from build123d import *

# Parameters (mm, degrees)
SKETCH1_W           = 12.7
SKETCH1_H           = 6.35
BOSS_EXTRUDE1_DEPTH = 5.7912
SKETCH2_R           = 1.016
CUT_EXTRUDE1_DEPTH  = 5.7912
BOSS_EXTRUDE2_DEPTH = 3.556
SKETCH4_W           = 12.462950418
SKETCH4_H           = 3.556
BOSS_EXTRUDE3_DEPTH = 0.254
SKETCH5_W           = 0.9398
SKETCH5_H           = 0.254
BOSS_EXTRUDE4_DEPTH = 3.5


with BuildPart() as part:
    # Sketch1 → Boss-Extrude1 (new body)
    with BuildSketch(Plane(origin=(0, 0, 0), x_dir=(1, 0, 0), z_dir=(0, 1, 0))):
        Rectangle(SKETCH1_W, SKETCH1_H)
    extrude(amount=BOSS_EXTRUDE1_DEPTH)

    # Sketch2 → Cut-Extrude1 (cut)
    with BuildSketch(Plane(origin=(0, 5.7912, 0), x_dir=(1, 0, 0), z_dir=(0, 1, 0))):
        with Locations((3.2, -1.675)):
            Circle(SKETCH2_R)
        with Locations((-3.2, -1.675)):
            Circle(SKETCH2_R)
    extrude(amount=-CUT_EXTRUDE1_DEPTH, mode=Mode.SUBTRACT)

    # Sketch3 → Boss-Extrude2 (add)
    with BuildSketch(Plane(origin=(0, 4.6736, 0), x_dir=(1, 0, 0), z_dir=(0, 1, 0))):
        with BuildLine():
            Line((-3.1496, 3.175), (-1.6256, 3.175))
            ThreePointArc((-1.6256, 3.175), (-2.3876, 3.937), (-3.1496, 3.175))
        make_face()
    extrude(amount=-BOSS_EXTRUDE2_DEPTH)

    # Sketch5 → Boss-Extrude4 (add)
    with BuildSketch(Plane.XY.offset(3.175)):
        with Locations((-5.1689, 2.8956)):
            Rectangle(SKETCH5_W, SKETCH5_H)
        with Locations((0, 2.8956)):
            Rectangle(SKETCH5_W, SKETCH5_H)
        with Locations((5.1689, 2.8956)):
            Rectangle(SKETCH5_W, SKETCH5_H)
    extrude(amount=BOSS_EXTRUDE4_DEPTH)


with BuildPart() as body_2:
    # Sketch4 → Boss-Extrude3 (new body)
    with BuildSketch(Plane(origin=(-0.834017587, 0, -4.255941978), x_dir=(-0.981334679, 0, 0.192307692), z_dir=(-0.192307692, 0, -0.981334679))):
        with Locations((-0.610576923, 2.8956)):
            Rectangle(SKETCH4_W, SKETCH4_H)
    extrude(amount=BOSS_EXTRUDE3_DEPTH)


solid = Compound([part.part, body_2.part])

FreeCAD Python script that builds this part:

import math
import FreeCAD as App
import Part
import Sketcher
Q = App.Units.Quantity


def add_polygon(sketch, points):
    """Adds a closed chain of lines whose ends are joined by coincident constraints."""
    first, n = sketch.GeometryCount, len(points)
    for a, b in zip(points, points[1:] + points[:1]):
        sketch.addGeometry(Part.LineSegment(App.Vector(*a, 0), App.Vector(*b, 0)), False)
    for i in range(n):
        sketch.addConstraint(Sketcher.Constraint("Coincident", first + i, 2, first + (i + 1) % n, 1))

doc = App.newDocument("Part")
body = doc.addObject("PartDesign::Body", "Body")

sketch1 = body.newObject("Sketcher::SketchObject", "Sketch")
sketch1.AttachmentSupport = (doc.getObject("XZ_Plane"), [""])
sketch1.MapMode = "FlatFace"
add_polygon(sketch1, [(-6, -3), (-6, 3), (6, 3), (6, -3)])
sketch1.addConstraint(Sketcher.Constraint("Vertical", 0))
sketch1.addConstraint(Sketcher.Constraint("Horizontal", 1))
sketch1.addConstraint(Sketcher.Constraint("Vertical", 2))
sketch1.addConstraint(Sketcher.Constraint("Horizontal", 3))
sketch1.addConstraint(Sketcher.Constraint("Symmetric", 0, 2, 2, 2, -1, 1))
sketch1.addConstraint(Sketcher.Constraint("DistanceX", 1, 1, 1, 2, Q("0.5 in")))
sketch1.addConstraint(Sketcher.Constraint("DistanceY", 0, 1, 0, 2, Q("0.25 in")))
pad1 = body.newObject("PartDesign::Pad", "Pad")
pad1.Profile = sketch1
pad1.Length = Q("0.228 in")
pad1.Reversed = True

sketch2 = body.newObject("Sketcher::SketchObject", "Sketch001")
sketch2.AttachmentSupport = (doc.getObject("XZ_Plane"), [""])
sketch2.MapMode = "FlatFace"
sketch2.AttachmentOffset = App.Placement(App.Vector(0, 0, -0.228 * 25.4), App.Rotation())
sketch2.addGeometry(Part.Circle(App.Vector(3.2, 1.7, 0), App.Vector(0, 0, 1), 1), False)
sketch2.addGeometry(Part.Circle(App.Vector(-3.2, 1.7, 0), App.Vector(0, 0, 1), 1), False)
sketch2.addConstraint(Sketcher.Constraint("Equal", 0, 1))
sketch2.addConstraint(Sketcher.Constraint("Symmetric", 0, 3, 1, 3, -2))
sketch2.addConstraint(Sketcher.Constraint("Diameter", 0, Q("0.08 in")))
sketch2.addConstraint(Sketcher.Constraint("DistanceX", -1, 1, 0, 3, Q("3.2 mm")))
sketch2.addConstraint(Sketcher.Constraint("DistanceY", -1, 1, 0, 3, Q("1.675 mm")))
pocket1 = body.newObject("PartDesign::Pocket", "Pocket")
pocket1.Profile = sketch2
pocket1.Length = Q("0.228 in")
pocket1.Reversed = True

sketch3 = body.newObject("Sketcher::SketchObject", "Sketch002")
sketch3.AttachmentSupport = (doc.getObject("XZ_Plane"), [""])
sketch3.MapMode = "FlatFace"
sketch3.AttachmentOffset = App.Placement(App.Vector(0, 0, -0.184 * 25.4), App.Rotation())
sketch3.addGeometry(Part.LineSegment(App.Vector(-3.1, -3.2, 0), App.Vector(-1.6, -3.2, 0)), False)
sketch3.addGeometry(Part.ArcOfCircle(Part.Circle(App.Vector(-2.4, -3.2, 0), App.Vector(0, 0, 1), 0.8), math.radians(180), math.radians(360)), False)
sketch3.addConstraint(Sketcher.Constraint("Coincident", 0, 1, 1, 1))
sketch3.addConstraint(Sketcher.Constraint("Coincident", 1, 2, 0, 2))
sketch3.addConstraint(Sketcher.Constraint("Horizontal", 0))
sketch3.addConstraint(Sketcher.Constraint("Horizontal", 1, 3, 0, 1))
sketch3.addConstraint(Sketcher.Constraint("Radius", 1, Q("0.03 in")))
sketch3.addConstraint(Sketcher.Constraint("DistanceX", 1, 3, -1, 1, Q("0.094 in")))
sketch3.addConstraint(Sketcher.Constraint("DistanceY", 1, 3, -1, 1, Q("0.125 in")))
pad2 = body.newObject("PartDesign::Pad", "Pad001")
pad2.Profile = sketch3
pad2.Length = Q("0.14 in")

sketch4 = body.newObject("Sketcher::SketchObject", "Sketch003")
sketch4.AttachmentSupport = (doc.getObject("XY_Plane"), [""])
sketch4.MapMode = "FlatFace"
sketch4.AttachmentOffset = App.Placement(App.Vector(0, 0, 0.125 * 25.4), App.Rotation())
add_polygon(sketch4, [(-5.64, 3.02), (-5.64, 2.77), (-4.7, 2.77), (-4.7, 3.02)])
add_polygon(sketch4, [(-0.47, 3.02), (-0.47, 2.77), (0.47, 2.77), (0.47, 3.02)])
add_polygon(sketch4, [(4.7, 3.02), (4.7, 2.77), (5.64, 2.77), (5.64, 3.02)])
sketch4.addConstraint(Sketcher.Constraint("Vertical", 0))
sketch4.addConstraint(Sketcher.Constraint("Horizontal", 1))
sketch4.addConstraint(Sketcher.Constraint("Vertical", 2))
sketch4.addConstraint(Sketcher.Constraint("Horizontal", 3))
sketch4.addConstraint(Sketcher.Constraint("Vertical", 4))
sketch4.addConstraint(Sketcher.Constraint("Horizontal", 5))
sketch4.addConstraint(Sketcher.Constraint("Vertical", 6))
sketch4.addConstraint(Sketcher.Constraint("Horizontal", 7))
sketch4.addConstraint(Sketcher.Constraint("Vertical", 8))
sketch4.addConstraint(Sketcher.Constraint("Horizontal", 9))
sketch4.addConstraint(Sketcher.Constraint("Vertical", 10))
sketch4.addConstraint(Sketcher.Constraint("Horizontal", 11))
sketch4.addConstraint(Sketcher.Constraint("Symmetric", 1, 2, 8, 2, -2))
sketch4.addConstraint(Sketcher.Constraint("Symmetric", 3, 2, 10, 2, -2))
sketch4.addConstraint(Sketcher.Constraint("Horizontal", 1, 2, 4, 2))
sketch4.addConstraint(Sketcher.Constraint("Horizontal", 3, 2, 6, 2))
sketch4.addConstraint(Sketcher.Constraint("Equal", 3, 5))
sketch4.addConstraint(Sketcher.Constraint("DistanceY", 0, 2, 0, 1, Q("0.01 in")))
sketch4.addConstraint(Sketcher.Constraint("DistanceX", 1, 1, 1, 2, Q("0.037 in")))
sketch4.addConstraint(Sketcher.Constraint("DistanceX", 1, 2, 8, 2, Q("0.37 in")))
sketch4.addConstraint(Sketcher.Constraint("DistanceY", -1, 1, 0, 2, Q("0.109 in")))
sketch4.addConstraint(Sketcher.Constraint("DistanceX", 4, 2, -1, 1, Q("0.0185 in")))
pad3 = body.newObject("PartDesign::Pad", "Pad002")
pad3.Profile = sketch4
pad3.Length = 3.5
body2 = doc.addObject("PartDesign::Body", "Body001")

sketch5 = body2.newObject("Sketcher::SketchObject", "Sketch004")
sketch5.Placement = App.Placement(App.Vector(-0.834018, 0, -4.255942), App.Rotation(App.Vector(-0.981334679, 0, 0.192307692), App.Vector(0, 1.000000001, 0), App.Vector(-0.192307692, 0, -0.981334679), "ZXY"))
add_polygon(sketch5, [(-6.8, 4.7), (-6.8, 1.1), (5.6, 1.1), (5.6, 4.7)])
sketch5.addConstraint(Sketcher.Constraint("Vertical", 0))
sketch5.addConstraint(Sketcher.Constraint("Horizontal", 1))
sketch5.addConstraint(Sketcher.Constraint("Vertical", 2))
sketch5.addConstraint(Sketcher.Constraint("Horizontal", 3))
sketch5.addConstraint(Sketcher.Constraint("DistanceY", 0, 2, 0, 1, Q("0.14 in")))
sketch5.addConstraint(Sketcher.Constraint("DistanceY", -1, 1, 0, 2, Q("0.044 in")))
sketch5.addConstraint(Sketcher.Constraint("DistanceX", 1, 1, 1, 2, Q("12.46295 mm")))
sketch5.addConstraint(Sketcher.Constraint("DistanceX", -1, 1, 1, 2, Q("5.620898 mm")))
pad4 = body2.newObject("PartDesign::Pad", "Pad003")
pad4.Profile = sketch5
pad4.Length = Q("0.01 in")

doc.recompute()
